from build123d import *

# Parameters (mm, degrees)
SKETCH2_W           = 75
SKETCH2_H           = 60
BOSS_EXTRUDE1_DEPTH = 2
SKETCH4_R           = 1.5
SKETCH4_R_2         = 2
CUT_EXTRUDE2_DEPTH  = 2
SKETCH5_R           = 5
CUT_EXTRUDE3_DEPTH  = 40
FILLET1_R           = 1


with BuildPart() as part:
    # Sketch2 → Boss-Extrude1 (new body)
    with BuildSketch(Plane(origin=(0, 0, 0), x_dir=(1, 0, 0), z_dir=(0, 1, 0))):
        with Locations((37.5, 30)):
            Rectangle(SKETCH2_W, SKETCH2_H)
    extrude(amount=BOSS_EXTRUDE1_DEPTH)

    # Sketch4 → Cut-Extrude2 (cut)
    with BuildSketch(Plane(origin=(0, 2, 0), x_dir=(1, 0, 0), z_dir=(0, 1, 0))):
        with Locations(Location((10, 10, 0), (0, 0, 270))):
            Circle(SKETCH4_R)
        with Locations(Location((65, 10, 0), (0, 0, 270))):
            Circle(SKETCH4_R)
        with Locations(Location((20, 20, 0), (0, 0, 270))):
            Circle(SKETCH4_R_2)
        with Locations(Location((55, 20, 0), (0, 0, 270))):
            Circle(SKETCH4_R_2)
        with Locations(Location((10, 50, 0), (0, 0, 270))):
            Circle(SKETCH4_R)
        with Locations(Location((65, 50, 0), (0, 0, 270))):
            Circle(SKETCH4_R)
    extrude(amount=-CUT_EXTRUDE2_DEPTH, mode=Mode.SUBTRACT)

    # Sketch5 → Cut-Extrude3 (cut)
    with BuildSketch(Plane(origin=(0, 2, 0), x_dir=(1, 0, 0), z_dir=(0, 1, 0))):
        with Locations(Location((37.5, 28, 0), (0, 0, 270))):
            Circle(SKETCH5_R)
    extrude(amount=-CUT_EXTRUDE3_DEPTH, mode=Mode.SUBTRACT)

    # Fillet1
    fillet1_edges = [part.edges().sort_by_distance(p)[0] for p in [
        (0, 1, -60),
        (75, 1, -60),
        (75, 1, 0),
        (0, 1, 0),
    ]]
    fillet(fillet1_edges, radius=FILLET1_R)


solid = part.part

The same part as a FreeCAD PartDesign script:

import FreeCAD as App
import Part
import Sketcher


def edges_at(feature, points):
    """Names of the edges that pass closest to the given points."""
    edges = feature.Shape.Edges
    near = lambda p: min(range(len(edges)), key=lambda i: edges[i].distToShape(Part.Vertex(*p))[0])
    return sorted({f"Edge{near(p) + 1}" for p in points})

doc = App.newDocument("Part")
body = doc.addObject("PartDesign::Body", "Body")

# Sketch on XZ plane
sketch1 = body.newObject("Sketcher::SketchObject", "Sketch")
sketch1.AttachmentSupport = (doc.getObject("XZ_Plane"), [""])
sketch1.MapMode = "FlatFace"
sketch1.addGeometry(Part.LineSegment(App.Vector(0, -60, 0), App.Vector(0, 0, 0)), False)
sketch1.addGeometry(Part.LineSegment(App.Vector(0, 0, 0), App.Vector(75, 0, 0)), False)
sketch1.addGeometry(Part.LineSegment(App.Vector(75, 0, 0), App.Vector(75, -60, 0)), False)
sketch1.addGeometry(Part.LineSegment(App.Vector(75, -60, 0), App.Vector(0, -60, 0)), False)
sketch1.addConstraint(Sketcher.Constraint("Coincident", 0, 2, 1, 1))
sketch1.addConstraint(Sketcher.Constraint("Coincident", 1, 2, 2, 1))
sketch1.addConstraint(Sketcher.Constraint("Coincident", 2, 2, 3, 1))
sketch1.addConstraint(Sketcher.Constraint("Coincident", 3, 2, 0, 1))
sketch1.addConstraint(Sketcher.Constraint("Vertical", 0))
sketch1.addConstraint(Sketcher.Constraint("Horizontal", 1))
sketch1.addConstraint(Sketcher.Constraint("Vertical", 2))
sketch1.addConstraint(Sketcher.Constraint("Horizontal", 3))
sketch1.addConstraint(Sketcher.Constraint("Coincident", 0, 2, -1, 1))
sketch1.addConstraint(Sketcher.Constraint("DistanceX", 1, 1, 1, 2, 75.0))
sketch1.addConstraint(Sketcher.Constraint("DistanceY", 0, 1, 0, 2, 60.0))
pad1 = body.newObject("PartDesign::Pad", "Pad")
pad1.Profile = sketch1
pad1.Length = 2
pad1.Reversed = True

# Sketch on XZ plane
sketch2 = body.newObject("Sketcher::SketchObject", "Sketch001")
sketch2.AttachmentSupport = (doc.getObject("XZ_Plane"), [""])
sketch2.MapMode = "FlatFace"
sketch2.AttachmentOffset = App.Placement(App.Vector(0, 0, -2), App.Rotation())
sketch2.addGeometry(Part.Circle(App.Vector(10, -10, 0), App.Vector(0, 0, 1), 1.5), False)
sketch2.addGeometry(Part.Circle(App.Vector(65, -10, 0), App.Vector(0, 0, 1), 1.5), False)
sketch2.addGeometry(Part.Circle(App.Vector(20, -20, 0), App.Vector(0, 0, 1), 2), False)
sketch2.addGeometry(Part.Circle(App.Vector(55, -20, 0), App.Vector(0, 0, 1), 2), False)
sketch2.addGeometry(Part.Circle(App.Vector(10, -50, 0), App.Vector(0, 0, 1), 1.5), False)
sketch2.addGeometry(Part.Circle(App.Vector(65, -50, 0), App.Vector(0, 0, 1), 1.5), False)
sketch2.addConstraint(Sketcher.Constraint("Equal", 0, 1))
sketch2.addConstraint(Sketcher.Constraint("Equal", 2, 3))
sketch2.addConstraint(Sketcher.Constraint("Equal", 1, 4))
sketch2.addConstraint(Sketcher.Constraint("Equal", 4, 5))
sketch2.addConstraint(Sketcher.Constraint("Horizontal", 0, 3, 1, 3))
sketch2.addConstraint(Sketcher.Constraint("Horizontal", 2, 3, 3, 3))
sketch2.addConstraint(Sketcher.Constraint("Horizontal", 4, 3, 5, 3))
sketch2.addConstraint(Sketcher.Constraint("Vertical", 0, 3, 4, 3))
sketch2.addConstraint(Sketcher.Constraint("Vertical", 1, 3, 5, 3))
sketch2.addConstraint(Sketcher.Constraint("Diameter", 0, 3.0))
sketch2.addConstraint(Sketcher.Constraint("Diameter", 2, 4.0))
sketch2.addConstraint(Sketcher.Constraint("DistanceX", -1, 1, 0, 3, 10.0))
sketch2.addConstraint(Sketcher.Constraint("DistanceY", 0, 3, -1, 1, 10.0))
sketch2.addConstraint(Sketcher.Constraint("DistanceX", -1, 1, 1, 3, 65.0))
sketch2.addConstraint(Sketcher.Constraint("DistanceX", -1, 1, 2, 3, 20.0))
sketch2.addConstraint(Sketcher.Constraint("DistanceY", 2, 3, -1, 1, 20.0))
sketch2.addConstraint(Sketcher.Constraint("DistanceX", -1, 1, 3, 3, 55.0))
sketch2.addConstraint(Sketcher.Constraint("DistanceY", 4, 3, -1, 1, 50.0))
pocket1 = body.newObject("PartDesign::Pocket", "Pocket")
pocket1.Profile = sketch2
pocket1.Length = 2
pocket1.Reversed = True

# Sketch on XZ plane
sketch3 = body.newObject("Sketcher::SketchObject", "Sketch002")
sketch3.AttachmentSupport = (doc.getObject("XZ_Plane"), [""])
sketch3.MapMode = "FlatFace"
sketch3.AttachmentOffset = App.Placement(App.Vector(0, 0, -2), App.Rotation())
sketch3.addGeometry(Part.Circle(App.Vector(37.5, -28, 0), App.Vector(0, 0, 1), 5), False)
sketch3.addConstraint(Sketcher.Constraint("Diameter", 0, 10.0))
sketch3.addConstraint(Sketcher.Constraint("DistanceY", 0, 3, -1, 1, 28.0))
sketch3.addConstraint(Sketcher.Constraint("DistanceX", -1, 1, 0, 3, 37.5))
pocket2 = body.newObject("PartDesign::Pocket", "Pocket001")
pocket2.Profile = sketch3
pocket2.Length = 40
pocket2.Reversed = True
doc.recompute()

fillet = body.newObject("PartDesign::Fillet", "Fillet")
fillet.Base = (pocket2, edges_at(pocket2, [
    (0, 1, -60),
    (75, 1, -60),
    (75, 1, 0),
    (0, 1, 0),
]))
fillet.Radius = 1

doc.recompute()
